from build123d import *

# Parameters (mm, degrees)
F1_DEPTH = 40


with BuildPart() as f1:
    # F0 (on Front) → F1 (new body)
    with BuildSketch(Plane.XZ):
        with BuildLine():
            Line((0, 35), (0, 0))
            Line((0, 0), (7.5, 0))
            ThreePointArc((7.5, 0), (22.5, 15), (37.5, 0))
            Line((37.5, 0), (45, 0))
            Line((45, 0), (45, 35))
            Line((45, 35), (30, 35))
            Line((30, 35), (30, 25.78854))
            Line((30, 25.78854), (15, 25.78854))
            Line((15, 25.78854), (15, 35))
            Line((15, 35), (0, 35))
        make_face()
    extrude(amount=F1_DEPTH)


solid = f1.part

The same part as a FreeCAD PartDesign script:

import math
import FreeCAD as App
import Part
import Sketcher
Q = App.Units.Quantity

doc = App.newDocument("Part")
body = doc.addObject("PartDesign::Body", "Body")

# Sketch on XZ plane
sketch1 = doc.addObject("Sketcher::SketchObject", "Sketch")
body.addObject(sketch1)
sketch1.AttachmentSupport = (doc.XZ_Plane, [""])
sketch1.MapMode = "FlatFace"
sketch1.addGeometry([
    Part.LineSegment(App.Vector(0, 35, 0), App.Vector(0, 0, 0)),  # 0
    Part.LineSegment(App.Vector(0, 0, 0), App.Vector(8, 0, 0)),  # 1
    Part.ArcOfCircle(Part.Circle(App.Vector(22, 0, 0), App.Vector(0, 0, 1), 15), math.radians(0), math.radians(180)),  # 2
    Part.LineSegment(App.Vector(38, 0, 0), App.Vector(45, 0, 0)),  # 3
    Part.LineSegment(App.Vector(45, 0, 0), App.Vector(45, 35, 0)),  # 4
    Part.LineSegment(App.Vector(45, 35, 0), App.Vector(30, 35, 0)),  # 5
    Part.LineSegment(App.Vector(30, 35, 0), App.Vector(30, 26, 0)),  # 6
    Part.LineSegment(App.Vector(30, 26, 0), App.Vector(15, 26, 0)),  # 7
    Part.LineSegment(App.Vector(15, 26, 0), App.Vector(15, 35, 0)),  # 8
    Part.LineSegment(App.Vector(15, 35, 0), App.Vector(0, 35, 0)),  # 9
], False)
sketch1.addConstraint([
    Sketcher.Constraint("Coincident", 0, 2, 1, 1),
    Sketcher.Constraint("Coincident", 1, 2, 2, 2),
    Sketcher.Constraint("Coincident", 2, 1, 3, 1),
    Sketcher.Constraint("Coincident", 3, 2, 4, 1),
    Sketcher.Constraint("Coincident", 4, 2, 5, 1),
    Sketcher.Constraint("Coincident", 5, 2, 6, 1),
    Sketcher.Constraint("Coincident", 6, 2, 7, 1),
    Sketcher.Constraint("Coincident", 7, 2, 8, 1),
    Sketcher.Constraint("Coincident", 8, 2, 9, 1),
    Sketcher.Constraint("Coincident", 9, 2, 0, 1),
    Sketcher.Constraint("Vertical", 0),
    Sketcher.Constraint("Horizontal", 1),
    Sketcher.Constraint("Horizontal", 3),
    Sketcher.Constraint("Vertical", 4),
    Sketcher.Constraint("Horizontal", 5),
    Sketcher.Constraint("Vertical", 6),
    Sketcher.Constraint("Horizontal", 7),
    Sketcher.Constraint("Vertical", 8),
    Sketcher.Constraint("Horizontal", 9),
    Sketcher.Constraint("Coincident", 0, 2, -1, 1),
    Sketcher.Constraint("PointOnObject", 2, 3, -1),
    Sketcher.Constraint("PointOnObject", 2, 1, -1),
    Sketcher.Constraint("Horizontal", 5, 2, 8, 2),
    Sketcher.Constraint("Equal", 1, 3),
    Sketcher.Constraint("Equal", 5, 7),
    Sketcher.Constraint("Equal", 7, 9),
    Sketcher.Constraint("Radius", 2, Q("15 mm")),
    Sketcher.Constraint("DistanceX", 5, 2, 5, 1, Q("15 mm")),
    Sketcher.Constraint("DistanceY", 0, 2, 0, 1, Q("35 mm")),
    Sketcher.Constraint("DistanceY", 6, 2, 6, 1, Q("9.21146 mm")),
])
pad1 = doc.addObject("PartDesign::Pad", "Pad")
body.addObject(pad1)
pad1.Profile = sketch1
pad1.Length = 40

doc.recompute()
